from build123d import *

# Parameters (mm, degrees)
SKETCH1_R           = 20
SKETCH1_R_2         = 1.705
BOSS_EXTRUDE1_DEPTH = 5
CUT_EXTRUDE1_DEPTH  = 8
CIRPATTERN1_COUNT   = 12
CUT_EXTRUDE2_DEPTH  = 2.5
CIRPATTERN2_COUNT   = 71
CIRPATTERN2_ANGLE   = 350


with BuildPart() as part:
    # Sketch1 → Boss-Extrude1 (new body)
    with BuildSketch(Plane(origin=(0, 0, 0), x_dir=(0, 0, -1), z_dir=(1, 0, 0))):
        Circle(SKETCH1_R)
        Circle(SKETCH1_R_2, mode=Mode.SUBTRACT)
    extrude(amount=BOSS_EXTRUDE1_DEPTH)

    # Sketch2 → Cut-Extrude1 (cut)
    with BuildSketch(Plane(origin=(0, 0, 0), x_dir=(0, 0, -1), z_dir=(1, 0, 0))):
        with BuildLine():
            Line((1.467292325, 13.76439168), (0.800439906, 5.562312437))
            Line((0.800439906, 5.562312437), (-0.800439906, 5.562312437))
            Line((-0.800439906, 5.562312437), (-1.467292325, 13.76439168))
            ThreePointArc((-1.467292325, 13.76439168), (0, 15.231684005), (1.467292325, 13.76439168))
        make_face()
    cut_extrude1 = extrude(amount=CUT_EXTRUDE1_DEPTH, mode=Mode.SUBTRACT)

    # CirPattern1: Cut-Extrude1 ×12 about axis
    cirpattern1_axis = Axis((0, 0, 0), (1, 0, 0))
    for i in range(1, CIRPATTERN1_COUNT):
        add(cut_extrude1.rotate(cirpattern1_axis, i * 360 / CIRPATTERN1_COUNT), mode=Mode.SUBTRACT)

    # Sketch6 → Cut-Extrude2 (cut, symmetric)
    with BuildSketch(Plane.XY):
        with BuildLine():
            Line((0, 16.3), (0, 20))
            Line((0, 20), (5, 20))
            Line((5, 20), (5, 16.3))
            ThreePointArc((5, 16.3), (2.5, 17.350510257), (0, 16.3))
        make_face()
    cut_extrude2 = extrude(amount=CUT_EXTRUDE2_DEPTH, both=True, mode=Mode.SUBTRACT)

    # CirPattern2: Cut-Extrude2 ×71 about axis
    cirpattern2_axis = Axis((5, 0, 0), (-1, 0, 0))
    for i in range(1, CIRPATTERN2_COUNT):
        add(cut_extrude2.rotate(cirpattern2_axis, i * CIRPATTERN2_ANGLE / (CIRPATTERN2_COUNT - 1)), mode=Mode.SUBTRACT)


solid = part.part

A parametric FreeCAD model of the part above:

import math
import FreeCAD as App
import Part
import Sketcher

V = App.Vector
Q = App.Units.Quantity

doc = App.newDocument("Part")
body = doc.addObject("PartDesign::Body", "Body")

sketch1 = doc.addObject("Sketcher::SketchObject", "Sketch")
body.addObject(sketch1)
sketch1.AttachmentSupport = (doc.YZ_Plane, [""])
sketch1.MapMode = "FlatFace"
sketch1.addGeometry(Part.Circle(V(0, 0, 0), V(0, 0, 1), 20), False)
sketch1.addGeometry(Part.Circle(V(0, 0, 0), V(0, 0, 1), 1.7), False)
sketch1.addConstraint(Sketcher.Constraint("Coincident", 0, 3, -1, 1))
sketch1.addConstraint(Sketcher.Constraint("Coincident", 1, 3, -1, 1))
sketch1.addConstraint(Sketcher.Constraint("Diameter", 0, Q("40 mm")))
sketch1.addConstraint(Sketcher.Constraint("Diameter", 1, Q("3.41 mm")))
pad1 = doc.addObject("PartDesign::Pad", "Pad")
body.addObject(pad1)
pad1.Profile = sketch1
pad1.Length = 5

sketch2 = doc.addObject("Sketcher::SketchObject", "Sketch001")
body.addObject(sketch2)
sketch2.AttachmentSupport = (doc.YZ_Plane, [""])
sketch2.MapMode = "FlatFace"
sketch2.addGeometry(Part.LineSegment(V(5.6, -0.8, 0), V(13.8, -1.5, 0)), False)
sketch2.addGeometry(Part.ArcOfCircle(Part.Circle(V(13.8, 0, 0), V(0, 0, 1), 1.5), math.radians(-90), math.radians(90)), False)
sketch2.addGeometry(Part.LineSegment(V(13.8, 1.5, 0), V(5.6, 0.8, 0)), False)
sketch2.addGeometry(Part.LineSegment(V(5.6, 0.8, 0), V(5.6, -0.8, 0)), False)
sketch2.addConstraint(Sketcher.Constraint("Coincident", 0, 2, 1, 1))
sketch2.addConstraint(Sketcher.Constraint("Coincident", 1, 2, 2, 1))
sketch2.addConstraint(Sketcher.Constraint("Coincident", 2, 2, 3, 1))
sketch2.addConstraint(Sketcher.Constraint("Coincident", 3, 2, 0, 1))
sketch2.addConstraint(Sketcher.Constraint("Vertical", 3))
sketch2.addConstraint(Sketcher.Constraint("Symmetric", 0, 2, 1, 2, -1))
sketch2.addConstraint(Sketcher.Constraint("Vertical", 1, 3, 0, 2))
sketch2.addConstraint(Sketcher.Constraint("Equal", 0, 2))
sketch2.addConstraint(Sketcher.Constraint("Radius", 1, Q("1.467292 mm")))
sketch2.addConstraint(Sketcher.Constraint("DistanceY", 3, 2, 3, 1, Q("1.60088 mm")))
sketch2.addConstraint(Sketcher.Constraint("DistanceX", -1, 1, 1, 3, Q("13.764392 mm")))
sketch2.addConstraint(Sketcher.Constraint("DistanceX", 2, 2, 1, 2, Q("8.202079 mm")))
pocket1 = doc.addObject("PartDesign::Pocket", "Pocket")
body.addObject(pocket1)
pocket1.Profile = sketch2
pocket1.Length = 8
pocket1.Reversed = True
doc.recompute()

polarpattern = doc.addObject("PartDesign::PolarPattern", "PolarPattern")
body.addObject(polarpattern)
polarpattern.Originals = [pocket1]
polarpattern.Axis = (doc.X_Axis, [""])
polarpattern.Angle = 360
polarpattern.Occurrences = 12
body.Tip = polarpattern

sketch3 = doc.addObject("Sketcher::SketchObject", "Sketch002")
body.addObject(sketch3)
sketch3.AttachmentSupport = (doc.XY_Plane, [""])
sketch3.MapMode = "FlatFace"
sketch3.addGeometry(Part.LineSegment(V(0, 20, 0), V(0, 16.3, 0)), False)
sketch3.addGeometry(Part.ArcOfCircle(Part.Circle(V(2.5, 13.9, 0), V(0, 0, 1), 3.5), math.radians(44), math.radians(136)), False)
sketch3.addGeometry(Part.LineSegment(V(5, 16.3, 0), V(5, 20, 0)), False)
sketch3.addGeometry(Part.LineSegment(V(5, 20, 0), V(0, 20, 0)), False)
sketch3.addConstraint(Sketcher.Constraint("Coincident", 0, 2, 1, 2))
sketch3.addConstraint(Sketcher.Constraint("Coincident", 1, 1, 2, 1))
sketch3.addConstraint(Sketcher.Constraint("Coincident", 2, 2, 3, 1))
sketch3.addConstraint(Sketcher.Constraint("Coincident", 3, 2, 0, 1))
sketch3.addConstraint(Sketcher.Constraint("Vertical", 0))
sketch3.addConstraint(Sketcher.Constraint("Vertical", 2))
sketch3.addConstraint(Sketcher.Constraint("Horizontal", 3))
sketch3.addConstraint(Sketcher.Constraint("PointOnObject", 0, 2, -2))
sketch3.addConstraint(Sketcher.Constraint("Horizontal", 0, 2, 1, 1))
sketch3.addConstraint(Sketcher.Constraint("Radius", 1, Q("3.5 mm")))
sketch3.addConstraint(Sketcher.Constraint("DistanceX", 3, 2, 3, 1, Q("5 mm")))
sketch3.addConstraint(Sketcher.Constraint("DistanceY", 0, 2, 0, 1, Q("3.7 mm")))
sketch3.addConstraint(Sketcher.Constraint("DistanceY", -1, 1, 2, 2, Q("20 mm")))
pocket2 = doc.addObject("PartDesign::Pocket", "Pocket001")
body.addObject(pocket2)
pocket2.Profile = sketch3
pocket2.Length = 5
pocket2.Midplane = True
doc.recompute()

polarpattern2 = doc.addObject("PartDesign::PolarPattern", "PolarPattern001")
body.addObject(polarpattern2)
polarpattern2.Originals = [pocket2]
polarpattern2.Axis = (doc.X_Axis, [""])
polarpattern2.Angle = 350
polarpattern2.Occurrences = 71
polarpattern2.Reversed = True
body.Tip = polarpattern2

doc.recompute()
